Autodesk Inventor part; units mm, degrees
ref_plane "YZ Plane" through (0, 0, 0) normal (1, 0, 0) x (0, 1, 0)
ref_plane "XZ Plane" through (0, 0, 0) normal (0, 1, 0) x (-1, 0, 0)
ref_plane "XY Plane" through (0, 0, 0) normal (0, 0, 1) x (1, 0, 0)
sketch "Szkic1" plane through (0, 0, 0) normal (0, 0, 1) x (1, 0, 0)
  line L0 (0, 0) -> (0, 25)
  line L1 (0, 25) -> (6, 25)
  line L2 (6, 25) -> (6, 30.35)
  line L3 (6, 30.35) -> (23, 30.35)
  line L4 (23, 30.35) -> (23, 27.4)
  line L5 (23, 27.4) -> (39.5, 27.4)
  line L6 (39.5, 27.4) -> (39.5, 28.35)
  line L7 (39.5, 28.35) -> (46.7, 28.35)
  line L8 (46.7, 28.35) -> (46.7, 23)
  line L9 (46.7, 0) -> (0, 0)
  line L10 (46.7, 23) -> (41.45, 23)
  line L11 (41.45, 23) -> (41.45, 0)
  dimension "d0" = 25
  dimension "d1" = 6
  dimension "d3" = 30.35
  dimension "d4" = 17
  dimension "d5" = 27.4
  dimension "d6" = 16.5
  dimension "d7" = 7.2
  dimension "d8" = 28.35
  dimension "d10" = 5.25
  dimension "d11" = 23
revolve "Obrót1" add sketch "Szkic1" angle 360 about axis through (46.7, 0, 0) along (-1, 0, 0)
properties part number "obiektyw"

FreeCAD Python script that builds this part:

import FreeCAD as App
import Part
import Sketcher

V = App.Vector

doc = App.newDocument("Part")
body = doc.addObject("PartDesign::Body", "Body")

sketch1 = body.newObject("Sketcher::SketchObject", "Sketch")
sketch1.AttachmentSupport = (doc.getObject("XY_Plane"), [""])
sketch1.MapMode = "FlatFace"
sketch1.addGeometry([
    Part.LineSegment(V(0, 25, 0), V(0, 0, 0)),
    Part.LineSegment(V(0, 0, 0), V(41.5, 0, 0)),
    Part.LineSegment(V(41.5, 0, 0), V(41.5, 23, 0)),
    Part.LineSegment(V(41.5, 23, 0), V(46.7, 23, 0)),
    Part.LineSegment(V(46.7, 23, 0), V(46.7, 28.4, 0)),
    Part.LineSegment(V(46.7, 28.4, 0), V(39.5, 28.4, 0)),
    Part.LineSegment(V(39.5, 28.4, 0), V(39.5, 27.4, 0)),
    Part.LineSegment(V(39.5, 27.4, 0), V(23, 27.4, 0)),
    Part.LineSegment(V(23, 27.4, 0), V(23, 30.4, 0)),
    Part.LineSegment(V(23, 30.4, 0), V(6, 30.4, 0)),
    Part.LineSegment(V(6, 30.4, 0), V(6, 25, 0)),
    Part.LineSegment(V(6, 25, 0), V(0, 25, 0)),
], False)
sketch1.addConstraint([
    Sketcher.Constraint("Coincident", 0, 2, 1, 1),
    Sketcher.Constraint("Coincident", 1, 2, 2, 1),
    Sketcher.Constraint("Coincident", 2, 2, 3, 1),
    Sketcher.Constraint("Coincident", 3, 2, 4, 1),
    Sketcher.Constraint("Coincident", 4, 2, 5, 1),
    Sketcher.Constraint("Coincident", 5, 2, 6, 1),
    Sketcher.Constraint("Coincident", 6, 2, 7, 1),
    Sketcher.Constraint("Coincident", 7, 2, 8, 1),
    Sketcher.Constraint("Coincident", 8, 2, 9, 1),
    Sketcher.Constraint("Coincident", 9, 2, 10, 1),
    Sketcher.Constraint("Coincident", 10, 2, 11, 1),
    Sketcher.Constraint("Coincident", 11, 2, 0, 1),
    Sketcher.Constraint("Vertical", 0),
    Sketcher.Constraint("Horizontal", 1),
    Sketcher.Constraint("Vertical", 2),
    Sketcher.Constraint("Horizontal", 3),
    Sketcher.Constraint("Vertical", 4),
    Sketcher.Constraint("Horizontal", 5),
    Sketcher.Constraint("Vertical", 6),
    Sketcher.Constraint("Horizontal", 7),
    Sketcher.Constraint("Vertical", 8),
    Sketcher.Constraint("Horizontal", 9),
    Sketcher.Constraint("Vertical", 10),
    Sketcher.Constraint("Horizontal", 11),
    Sketcher.Constraint("Coincident", 0, 2, -1, 1),
    Sketcher.Constraint("Equal", 4, 10),
    Sketcher.Constraint("DistanceX", 9, 2, 9, 1, 17.0),
    Sketcher.Constraint("DistanceX", 11, 2, 11, 1, 6.0),
    Sketcher.Constraint("DistanceY", 0, 2, 0, 1, 25.0),
    Sketcher.Constraint("DistanceY", 2, 1, 2, 2, 23.0),
    Sketcher.Constraint("DistanceX", 5, 2, 5, 1, 7.2),
    Sketcher.Constraint("DistanceX", 7, 2, 7, 1, 16.5),
    Sketcher.Constraint("DistanceX", 3, 1, 3, 2, 5.25),
    Sketcher.Constraint("DistanceY", -1, 1, 6, 2, 27.4),
    Sketcher.Constraint("DistanceY", -1, 1, 4, 2, 28.35),
])
revolution = body.newObject("PartDesign::Revolution", "Revolution")
revolution.Profile = sketch1
revolution.ReferenceAxis = (sketch1, ["H_Axis"])
revolution.Angle = 360

doc.recompute()
